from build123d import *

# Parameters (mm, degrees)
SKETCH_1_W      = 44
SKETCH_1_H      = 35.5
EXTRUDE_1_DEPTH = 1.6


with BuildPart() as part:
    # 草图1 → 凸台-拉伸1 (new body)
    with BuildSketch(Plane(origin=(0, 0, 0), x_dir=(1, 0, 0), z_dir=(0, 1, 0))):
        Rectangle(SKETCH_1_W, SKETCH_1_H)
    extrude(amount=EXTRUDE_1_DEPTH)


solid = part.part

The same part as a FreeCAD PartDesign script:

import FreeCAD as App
import Part
import Sketcher
Q = App.Units.Quantity


def add_polygon(sketch, points):
    """Adds a closed chain of lines whose ends are joined by coincident constraints."""
    first, n = sketch.GeometryCount, len(points)
    for a, b in zip(points, points[1:] + points[:1]):
        sketch.addGeometry(Part.LineSegment(App.Vector(*a, 0), App.Vector(*b, 0)), False)
    for i in range(n):
        sketch.addConstraint(Sketcher.Constraint("Coincident", first + i, 2, first + (i + 1) % n, 1))

doc = App.newDocument("Part")
params = doc.addObject("Spreadsheet::Sheet", "Params")
for row, (alias, value) in enumerate([
    ("sketch1_width", "44 mm"),
    ("sketch1_height", "35.5 mm"),
    ("pad1_length", "1.6 mm"),
], start=1):
    params.set(f"A{row}", alias)
    params.set(f"B{row}", "=" + value)
    params.setAlias(f"B{row}", alias)

body = doc.addObject("PartDesign::Body", "Body")

# Sketch on XZ plane
sketch1 = body.newObject("Sketcher::SketchObject", "Sketch")
sketch1.AttachmentSupport = (doc.getObject("XZ_Plane"), [""])
sketch1.MapMode = "FlatFace"
add_polygon(sketch1, [(-22, -18), (-22, 18), (22, 18), (22, -18)])  # lines 0-3
sketch1.addConstraint(Sketcher.Constraint("Vertical", 0))
sketch1.addConstraint(Sketcher.Constraint("Horizontal", 1))
sketch1.addConstraint(Sketcher.Constraint("Vertical", 2))
sketch1.addConstraint(Sketcher.Constraint("Horizontal", 3))
sketch1.addConstraint(Sketcher.Constraint("Symmetric", 0, 2, 2, 2, -1, 1))
sketch1.addConstraint(Sketcher.Constraint("DistanceX", 1, 1, 1, 2, Q("44 mm")))
sketch1.addConstraint(Sketcher.Constraint("DistanceY", 0, 1, 0, 2, Q("35.5 mm")))
sketch1.setExpression("Constraints[9]", "Params.sketch1_width")
sketch1.setExpression("Constraints[10]", "Params.sketch1_height")
pad1 = body.newObject("PartDesign::Pad", "Pad")
pad1.Profile = sketch1
pad1.setExpression("Length", "Params.pad1_length")
pad1.Reversed = True

doc.recompute()
